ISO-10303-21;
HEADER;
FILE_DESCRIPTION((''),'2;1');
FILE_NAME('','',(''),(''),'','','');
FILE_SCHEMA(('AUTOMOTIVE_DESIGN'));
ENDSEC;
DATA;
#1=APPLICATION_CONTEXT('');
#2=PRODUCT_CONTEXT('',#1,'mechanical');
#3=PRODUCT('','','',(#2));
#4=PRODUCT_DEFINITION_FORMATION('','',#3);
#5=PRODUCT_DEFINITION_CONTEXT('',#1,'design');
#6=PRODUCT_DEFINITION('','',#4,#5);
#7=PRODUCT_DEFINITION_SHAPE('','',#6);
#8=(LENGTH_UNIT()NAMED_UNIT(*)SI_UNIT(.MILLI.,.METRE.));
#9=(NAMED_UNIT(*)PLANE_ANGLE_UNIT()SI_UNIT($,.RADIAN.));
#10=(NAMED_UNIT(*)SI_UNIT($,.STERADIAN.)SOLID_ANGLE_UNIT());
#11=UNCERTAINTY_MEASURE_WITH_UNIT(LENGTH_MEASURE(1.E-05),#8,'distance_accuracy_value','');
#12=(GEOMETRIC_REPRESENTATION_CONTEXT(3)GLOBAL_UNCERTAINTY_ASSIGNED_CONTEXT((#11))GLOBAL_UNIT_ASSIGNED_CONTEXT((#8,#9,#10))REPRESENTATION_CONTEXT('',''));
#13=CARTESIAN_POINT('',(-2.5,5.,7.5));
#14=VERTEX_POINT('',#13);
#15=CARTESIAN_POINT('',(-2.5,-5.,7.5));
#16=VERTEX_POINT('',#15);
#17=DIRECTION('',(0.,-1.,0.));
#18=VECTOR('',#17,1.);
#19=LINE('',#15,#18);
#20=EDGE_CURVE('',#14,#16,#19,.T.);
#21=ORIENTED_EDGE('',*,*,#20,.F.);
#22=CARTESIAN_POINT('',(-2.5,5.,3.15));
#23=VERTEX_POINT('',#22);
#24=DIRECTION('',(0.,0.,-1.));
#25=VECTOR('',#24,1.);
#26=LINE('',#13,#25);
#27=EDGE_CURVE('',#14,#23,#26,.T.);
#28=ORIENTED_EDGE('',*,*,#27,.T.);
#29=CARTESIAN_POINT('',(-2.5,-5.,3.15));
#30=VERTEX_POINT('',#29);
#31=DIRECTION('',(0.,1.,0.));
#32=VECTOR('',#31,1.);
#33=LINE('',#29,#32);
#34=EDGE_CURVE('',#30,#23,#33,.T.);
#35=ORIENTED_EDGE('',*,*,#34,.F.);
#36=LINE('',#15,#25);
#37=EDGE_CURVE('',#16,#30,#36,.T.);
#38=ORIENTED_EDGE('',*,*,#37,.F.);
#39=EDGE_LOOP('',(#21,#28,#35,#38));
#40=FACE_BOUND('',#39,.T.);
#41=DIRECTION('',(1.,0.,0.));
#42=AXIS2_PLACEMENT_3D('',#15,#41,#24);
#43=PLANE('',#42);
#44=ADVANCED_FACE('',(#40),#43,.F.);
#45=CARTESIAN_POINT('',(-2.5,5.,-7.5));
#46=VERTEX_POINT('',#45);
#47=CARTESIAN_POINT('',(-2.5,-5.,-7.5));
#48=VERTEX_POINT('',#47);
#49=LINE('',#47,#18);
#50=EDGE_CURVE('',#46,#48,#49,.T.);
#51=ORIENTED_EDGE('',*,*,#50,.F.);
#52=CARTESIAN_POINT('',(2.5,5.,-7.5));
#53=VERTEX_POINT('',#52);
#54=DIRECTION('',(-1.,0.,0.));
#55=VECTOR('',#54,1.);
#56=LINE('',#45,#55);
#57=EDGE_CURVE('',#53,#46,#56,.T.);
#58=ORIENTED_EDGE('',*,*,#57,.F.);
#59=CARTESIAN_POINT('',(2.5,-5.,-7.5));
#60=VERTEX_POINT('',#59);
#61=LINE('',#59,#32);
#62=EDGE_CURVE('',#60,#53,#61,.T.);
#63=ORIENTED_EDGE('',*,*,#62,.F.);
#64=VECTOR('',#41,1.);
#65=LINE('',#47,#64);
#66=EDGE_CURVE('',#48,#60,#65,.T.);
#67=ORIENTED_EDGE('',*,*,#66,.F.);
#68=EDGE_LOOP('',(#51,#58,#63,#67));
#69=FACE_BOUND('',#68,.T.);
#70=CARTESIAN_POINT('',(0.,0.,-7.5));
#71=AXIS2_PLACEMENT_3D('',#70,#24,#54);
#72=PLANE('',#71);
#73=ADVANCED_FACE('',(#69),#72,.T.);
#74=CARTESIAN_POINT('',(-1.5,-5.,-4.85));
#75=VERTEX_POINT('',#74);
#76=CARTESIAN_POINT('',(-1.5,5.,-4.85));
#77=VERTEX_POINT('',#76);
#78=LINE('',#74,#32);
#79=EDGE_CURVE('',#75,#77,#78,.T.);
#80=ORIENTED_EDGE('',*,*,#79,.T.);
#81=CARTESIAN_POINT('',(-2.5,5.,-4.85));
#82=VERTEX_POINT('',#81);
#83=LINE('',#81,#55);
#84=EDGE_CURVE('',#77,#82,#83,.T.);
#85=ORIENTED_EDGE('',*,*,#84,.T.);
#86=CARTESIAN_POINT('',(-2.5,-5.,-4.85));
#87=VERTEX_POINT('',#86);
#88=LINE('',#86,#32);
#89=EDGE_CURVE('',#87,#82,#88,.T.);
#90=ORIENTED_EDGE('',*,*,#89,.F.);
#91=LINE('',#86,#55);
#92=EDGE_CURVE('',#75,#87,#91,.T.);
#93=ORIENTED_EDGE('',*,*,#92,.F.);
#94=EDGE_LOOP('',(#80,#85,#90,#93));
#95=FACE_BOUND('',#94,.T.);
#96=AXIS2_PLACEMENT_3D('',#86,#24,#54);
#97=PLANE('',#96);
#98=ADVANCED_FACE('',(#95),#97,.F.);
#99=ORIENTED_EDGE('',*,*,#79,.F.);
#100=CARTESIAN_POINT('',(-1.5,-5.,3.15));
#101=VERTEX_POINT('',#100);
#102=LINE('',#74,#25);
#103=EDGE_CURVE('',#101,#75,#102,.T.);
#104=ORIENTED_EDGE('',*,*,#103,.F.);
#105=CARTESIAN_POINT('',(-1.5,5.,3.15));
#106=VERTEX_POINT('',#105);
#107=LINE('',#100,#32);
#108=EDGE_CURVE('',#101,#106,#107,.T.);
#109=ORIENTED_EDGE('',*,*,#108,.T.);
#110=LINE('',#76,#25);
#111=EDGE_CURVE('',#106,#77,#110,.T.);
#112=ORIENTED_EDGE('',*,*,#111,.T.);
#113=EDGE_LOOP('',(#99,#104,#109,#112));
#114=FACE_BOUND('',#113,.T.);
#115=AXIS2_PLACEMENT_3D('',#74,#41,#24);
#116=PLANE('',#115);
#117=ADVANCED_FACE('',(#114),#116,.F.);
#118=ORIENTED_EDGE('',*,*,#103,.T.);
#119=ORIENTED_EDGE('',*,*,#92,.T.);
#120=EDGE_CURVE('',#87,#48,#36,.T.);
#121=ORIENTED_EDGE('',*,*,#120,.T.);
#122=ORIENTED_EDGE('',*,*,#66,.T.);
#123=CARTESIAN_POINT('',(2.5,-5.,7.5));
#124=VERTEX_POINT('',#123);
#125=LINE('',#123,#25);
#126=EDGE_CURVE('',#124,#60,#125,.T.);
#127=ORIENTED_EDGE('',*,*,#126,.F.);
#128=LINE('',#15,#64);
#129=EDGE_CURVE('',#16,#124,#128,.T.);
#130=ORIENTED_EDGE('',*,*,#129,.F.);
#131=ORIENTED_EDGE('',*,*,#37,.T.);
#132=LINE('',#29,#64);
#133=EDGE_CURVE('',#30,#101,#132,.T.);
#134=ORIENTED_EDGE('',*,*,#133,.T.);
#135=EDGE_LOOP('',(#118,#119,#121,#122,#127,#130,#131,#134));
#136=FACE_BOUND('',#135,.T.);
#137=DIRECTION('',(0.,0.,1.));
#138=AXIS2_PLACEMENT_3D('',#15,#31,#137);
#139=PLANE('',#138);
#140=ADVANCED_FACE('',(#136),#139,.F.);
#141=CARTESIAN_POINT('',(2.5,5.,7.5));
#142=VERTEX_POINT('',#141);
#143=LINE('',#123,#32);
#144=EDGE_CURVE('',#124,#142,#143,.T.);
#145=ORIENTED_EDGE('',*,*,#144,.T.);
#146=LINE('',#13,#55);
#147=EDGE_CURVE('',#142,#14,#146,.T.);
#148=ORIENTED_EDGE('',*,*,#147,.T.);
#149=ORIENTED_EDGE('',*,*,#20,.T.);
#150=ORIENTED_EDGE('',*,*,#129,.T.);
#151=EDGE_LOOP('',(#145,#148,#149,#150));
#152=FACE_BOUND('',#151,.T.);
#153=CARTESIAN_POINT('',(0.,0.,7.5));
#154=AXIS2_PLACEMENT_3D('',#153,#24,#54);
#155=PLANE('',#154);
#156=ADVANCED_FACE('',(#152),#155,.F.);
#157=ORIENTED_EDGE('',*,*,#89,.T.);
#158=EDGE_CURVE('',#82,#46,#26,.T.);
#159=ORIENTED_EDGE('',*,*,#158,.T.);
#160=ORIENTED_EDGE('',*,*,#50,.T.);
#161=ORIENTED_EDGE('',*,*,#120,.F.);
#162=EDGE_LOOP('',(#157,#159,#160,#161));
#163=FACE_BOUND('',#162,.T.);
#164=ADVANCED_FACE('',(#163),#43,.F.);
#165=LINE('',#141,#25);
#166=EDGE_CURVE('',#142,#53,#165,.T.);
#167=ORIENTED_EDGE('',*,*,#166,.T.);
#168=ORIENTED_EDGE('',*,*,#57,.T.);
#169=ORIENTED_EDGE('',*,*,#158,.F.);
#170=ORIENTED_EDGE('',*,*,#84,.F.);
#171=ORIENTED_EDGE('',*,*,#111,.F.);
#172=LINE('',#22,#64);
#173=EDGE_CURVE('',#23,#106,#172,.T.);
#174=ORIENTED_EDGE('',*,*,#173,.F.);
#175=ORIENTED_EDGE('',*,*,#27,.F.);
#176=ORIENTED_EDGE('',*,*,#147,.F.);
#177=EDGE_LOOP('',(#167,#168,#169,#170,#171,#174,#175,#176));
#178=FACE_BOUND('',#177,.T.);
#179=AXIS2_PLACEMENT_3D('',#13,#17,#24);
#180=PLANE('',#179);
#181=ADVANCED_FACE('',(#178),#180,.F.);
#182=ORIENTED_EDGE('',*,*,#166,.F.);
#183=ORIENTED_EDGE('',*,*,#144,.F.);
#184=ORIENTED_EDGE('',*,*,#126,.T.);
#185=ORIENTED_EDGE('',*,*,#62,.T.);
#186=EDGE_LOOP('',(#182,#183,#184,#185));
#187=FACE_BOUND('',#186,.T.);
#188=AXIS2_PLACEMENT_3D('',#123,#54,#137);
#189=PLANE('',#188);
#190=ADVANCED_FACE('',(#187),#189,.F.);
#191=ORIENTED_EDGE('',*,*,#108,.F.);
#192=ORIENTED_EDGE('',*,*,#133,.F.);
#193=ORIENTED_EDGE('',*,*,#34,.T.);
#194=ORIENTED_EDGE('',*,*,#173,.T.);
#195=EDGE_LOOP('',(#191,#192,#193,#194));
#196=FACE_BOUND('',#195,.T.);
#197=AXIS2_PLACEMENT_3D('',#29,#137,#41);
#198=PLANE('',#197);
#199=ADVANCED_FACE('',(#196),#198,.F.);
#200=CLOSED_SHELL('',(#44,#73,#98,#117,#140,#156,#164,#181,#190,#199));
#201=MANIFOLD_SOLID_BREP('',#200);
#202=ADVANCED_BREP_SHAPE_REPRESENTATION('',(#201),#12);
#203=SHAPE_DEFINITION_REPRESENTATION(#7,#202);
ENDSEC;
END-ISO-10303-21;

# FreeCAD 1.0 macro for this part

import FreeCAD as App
import Part
import Sketcher

doc = App.newDocument("Part")
params = doc.addObject("Spreadsheet::Sheet", "Params")
for row, (alias, value) in enumerate([
    ("sketch1_width", "5 mm"),
    ("sketch1_height", "10 mm"),
    ("pad1_length", "15 mm"),
    ("sketch2_width", "1 mm"),
    ("sketch2_height", "8 mm"),
], start=1):
    params.set(f"A{row}", alias)
    params.set(f"B{row}", "=" + value)
    params.setAlias(f"B{row}", alias)

body = doc.addObject("PartDesign::Body", "Body")

sketch1 = body.newObject("Sketcher::SketchObject", "Sketch")
sketch1.AttachmentSupport = (doc.getObject("XY_Plane"), [""])
sketch1.MapMode = "FlatFace"
sketch1.addGeometry(Part.LineSegment(App.Vector(-2, 5, 0), App.Vector(-2, -5, 0)), False)
sketch1.addGeometry(Part.LineSegment(App.Vector(-2, -5, 0), App.Vector(2, -5, 0)), False)
sketch1.addGeometry(Part.LineSegment(App.Vector(2, -5, 0), App.Vector(2, 5, 0)), False)
sketch1.addGeometry(Part.LineSegment(App.Vector(2, 5, 0), App.Vector(-2, 5, 0)), False)
sketch1.addConstraint(Sketcher.Constraint("Coincident", 0, 2, 1, 1))
sketch1.addConstraint(Sketcher.Constraint("Coincident", 1, 2, 2, 1))
sketch1.addConstraint(Sketcher.Constraint("Coincident", 2, 2, 3, 1))
sketch1.addConstraint(Sketcher.Constraint("Coincident", 3, 2, 0, 1))
sketch1.addConstraint(Sketcher.Constraint("Vertical", 0))
sketch1.addConstraint(Sketcher.Constraint("Horizontal", 1))
sketch1.addConstraint(Sketcher.Constraint("Vertical", 2))
sketch1.addConstraint(Sketcher.Constraint("Horizontal", 3))
sketch1.addConstraint(Sketcher.Constraint("Symmetric", 0, 2, 2, 2, -1, 1))
sketch1.addConstraint(Sketcher.Constraint("DistanceX", 1, 1, 1, 2, 5.0))
sketch1.addConstraint(Sketcher.Constraint("DistanceY", 0, 2, 0, 1, 10.0))
sketch1.setExpression("Constraints[9]", "Params.sketch1_width")
sketch1.setExpression("Constraints[10]", "Params.sketch1_height")
pad1 = body.newObject("PartDesign::Pad", "Pad")
pad1.Profile = sketch1
pad1.setExpression("Length", "Params.pad1_length")
pad1.Midplane = True

sketch2 = body.newObject("Sketcher::SketchObject", "Sketch001")
sketch2.AttachmentSupport = (doc.getObject("XZ_Plane"), [""])
sketch2.MapMode = "FlatFace"
sketch2.AttachmentOffset = App.Placement(App.Vector(0, 0, -5), App.Rotation())
sketch2.addGeometry(Part.LineSegment(App.Vector(-2.5, -4.8, 0), App.Vector(-2.5, 3.1, 0)), False)
sketch2.addGeometry(Part.LineSegment(App.Vector(-2.5, 3.1, 0), App.Vector(-1.5, 3.1, 0)), False)
sketch2.addGeometry(Part.LineSegment(App.Vector(-1.5, 3.1, 0), App.Vector(-1.5, -4.8, 0)), False)
sketch2.addGeometry(Part.LineSegment(App.Vector(-1.5, -4.8, 0), App.Vector(-2.5, -4.8, 0)), False)
sketch2.addConstraint(Sketcher.Constraint("Coincident", 0, 2, 1, 1))
sketch2.addConstraint(Sketcher.Constraint("Coincident", 1, 2, 2, 1))
sketch2.addConstraint(Sketcher.Constraint("Coincident", 2, 2, 3, 1))
sketch2.addConstraint(Sketcher.Constraint("Coincident", 3, 2, 0, 1))
sketch2.addConstraint(Sketcher.Constraint("Vertical", 0))
sketch2.addConstraint(Sketcher.Constraint("Horizontal", 1))
sketch2.addConstraint(Sketcher.Constraint("Vertical", 2))
sketch2.addConstraint(Sketcher.Constraint("Horizontal", 3))
sketch2.addConstraint(Sketcher.Constraint("DistanceX", 1, 1, 1, 2, 1.0))
sketch2.addConstraint(Sketcher.Constraint("DistanceY", 0, 1, 0, 2, 8.0))
sketch2.addConstraint(Sketcher.Constraint("DistanceX", 0, 2, -1, 1, 2.5))
sketch2.addConstraint(Sketcher.Constraint("DistanceY", -1, 1, 0, 2, 3.15))
sketch2.setExpression("Constraints[8]", "Params.sketch2_width")
sketch2.setExpression("Constraints[9]", "Params.sketch2_height")
pocket1 = body.newObject("PartDesign::Pocket", "Pocket")
pocket1.Profile = sketch2
pocket1.Type = "ThroughAll"
pocket1.Reversed = True

doc.recompute()
